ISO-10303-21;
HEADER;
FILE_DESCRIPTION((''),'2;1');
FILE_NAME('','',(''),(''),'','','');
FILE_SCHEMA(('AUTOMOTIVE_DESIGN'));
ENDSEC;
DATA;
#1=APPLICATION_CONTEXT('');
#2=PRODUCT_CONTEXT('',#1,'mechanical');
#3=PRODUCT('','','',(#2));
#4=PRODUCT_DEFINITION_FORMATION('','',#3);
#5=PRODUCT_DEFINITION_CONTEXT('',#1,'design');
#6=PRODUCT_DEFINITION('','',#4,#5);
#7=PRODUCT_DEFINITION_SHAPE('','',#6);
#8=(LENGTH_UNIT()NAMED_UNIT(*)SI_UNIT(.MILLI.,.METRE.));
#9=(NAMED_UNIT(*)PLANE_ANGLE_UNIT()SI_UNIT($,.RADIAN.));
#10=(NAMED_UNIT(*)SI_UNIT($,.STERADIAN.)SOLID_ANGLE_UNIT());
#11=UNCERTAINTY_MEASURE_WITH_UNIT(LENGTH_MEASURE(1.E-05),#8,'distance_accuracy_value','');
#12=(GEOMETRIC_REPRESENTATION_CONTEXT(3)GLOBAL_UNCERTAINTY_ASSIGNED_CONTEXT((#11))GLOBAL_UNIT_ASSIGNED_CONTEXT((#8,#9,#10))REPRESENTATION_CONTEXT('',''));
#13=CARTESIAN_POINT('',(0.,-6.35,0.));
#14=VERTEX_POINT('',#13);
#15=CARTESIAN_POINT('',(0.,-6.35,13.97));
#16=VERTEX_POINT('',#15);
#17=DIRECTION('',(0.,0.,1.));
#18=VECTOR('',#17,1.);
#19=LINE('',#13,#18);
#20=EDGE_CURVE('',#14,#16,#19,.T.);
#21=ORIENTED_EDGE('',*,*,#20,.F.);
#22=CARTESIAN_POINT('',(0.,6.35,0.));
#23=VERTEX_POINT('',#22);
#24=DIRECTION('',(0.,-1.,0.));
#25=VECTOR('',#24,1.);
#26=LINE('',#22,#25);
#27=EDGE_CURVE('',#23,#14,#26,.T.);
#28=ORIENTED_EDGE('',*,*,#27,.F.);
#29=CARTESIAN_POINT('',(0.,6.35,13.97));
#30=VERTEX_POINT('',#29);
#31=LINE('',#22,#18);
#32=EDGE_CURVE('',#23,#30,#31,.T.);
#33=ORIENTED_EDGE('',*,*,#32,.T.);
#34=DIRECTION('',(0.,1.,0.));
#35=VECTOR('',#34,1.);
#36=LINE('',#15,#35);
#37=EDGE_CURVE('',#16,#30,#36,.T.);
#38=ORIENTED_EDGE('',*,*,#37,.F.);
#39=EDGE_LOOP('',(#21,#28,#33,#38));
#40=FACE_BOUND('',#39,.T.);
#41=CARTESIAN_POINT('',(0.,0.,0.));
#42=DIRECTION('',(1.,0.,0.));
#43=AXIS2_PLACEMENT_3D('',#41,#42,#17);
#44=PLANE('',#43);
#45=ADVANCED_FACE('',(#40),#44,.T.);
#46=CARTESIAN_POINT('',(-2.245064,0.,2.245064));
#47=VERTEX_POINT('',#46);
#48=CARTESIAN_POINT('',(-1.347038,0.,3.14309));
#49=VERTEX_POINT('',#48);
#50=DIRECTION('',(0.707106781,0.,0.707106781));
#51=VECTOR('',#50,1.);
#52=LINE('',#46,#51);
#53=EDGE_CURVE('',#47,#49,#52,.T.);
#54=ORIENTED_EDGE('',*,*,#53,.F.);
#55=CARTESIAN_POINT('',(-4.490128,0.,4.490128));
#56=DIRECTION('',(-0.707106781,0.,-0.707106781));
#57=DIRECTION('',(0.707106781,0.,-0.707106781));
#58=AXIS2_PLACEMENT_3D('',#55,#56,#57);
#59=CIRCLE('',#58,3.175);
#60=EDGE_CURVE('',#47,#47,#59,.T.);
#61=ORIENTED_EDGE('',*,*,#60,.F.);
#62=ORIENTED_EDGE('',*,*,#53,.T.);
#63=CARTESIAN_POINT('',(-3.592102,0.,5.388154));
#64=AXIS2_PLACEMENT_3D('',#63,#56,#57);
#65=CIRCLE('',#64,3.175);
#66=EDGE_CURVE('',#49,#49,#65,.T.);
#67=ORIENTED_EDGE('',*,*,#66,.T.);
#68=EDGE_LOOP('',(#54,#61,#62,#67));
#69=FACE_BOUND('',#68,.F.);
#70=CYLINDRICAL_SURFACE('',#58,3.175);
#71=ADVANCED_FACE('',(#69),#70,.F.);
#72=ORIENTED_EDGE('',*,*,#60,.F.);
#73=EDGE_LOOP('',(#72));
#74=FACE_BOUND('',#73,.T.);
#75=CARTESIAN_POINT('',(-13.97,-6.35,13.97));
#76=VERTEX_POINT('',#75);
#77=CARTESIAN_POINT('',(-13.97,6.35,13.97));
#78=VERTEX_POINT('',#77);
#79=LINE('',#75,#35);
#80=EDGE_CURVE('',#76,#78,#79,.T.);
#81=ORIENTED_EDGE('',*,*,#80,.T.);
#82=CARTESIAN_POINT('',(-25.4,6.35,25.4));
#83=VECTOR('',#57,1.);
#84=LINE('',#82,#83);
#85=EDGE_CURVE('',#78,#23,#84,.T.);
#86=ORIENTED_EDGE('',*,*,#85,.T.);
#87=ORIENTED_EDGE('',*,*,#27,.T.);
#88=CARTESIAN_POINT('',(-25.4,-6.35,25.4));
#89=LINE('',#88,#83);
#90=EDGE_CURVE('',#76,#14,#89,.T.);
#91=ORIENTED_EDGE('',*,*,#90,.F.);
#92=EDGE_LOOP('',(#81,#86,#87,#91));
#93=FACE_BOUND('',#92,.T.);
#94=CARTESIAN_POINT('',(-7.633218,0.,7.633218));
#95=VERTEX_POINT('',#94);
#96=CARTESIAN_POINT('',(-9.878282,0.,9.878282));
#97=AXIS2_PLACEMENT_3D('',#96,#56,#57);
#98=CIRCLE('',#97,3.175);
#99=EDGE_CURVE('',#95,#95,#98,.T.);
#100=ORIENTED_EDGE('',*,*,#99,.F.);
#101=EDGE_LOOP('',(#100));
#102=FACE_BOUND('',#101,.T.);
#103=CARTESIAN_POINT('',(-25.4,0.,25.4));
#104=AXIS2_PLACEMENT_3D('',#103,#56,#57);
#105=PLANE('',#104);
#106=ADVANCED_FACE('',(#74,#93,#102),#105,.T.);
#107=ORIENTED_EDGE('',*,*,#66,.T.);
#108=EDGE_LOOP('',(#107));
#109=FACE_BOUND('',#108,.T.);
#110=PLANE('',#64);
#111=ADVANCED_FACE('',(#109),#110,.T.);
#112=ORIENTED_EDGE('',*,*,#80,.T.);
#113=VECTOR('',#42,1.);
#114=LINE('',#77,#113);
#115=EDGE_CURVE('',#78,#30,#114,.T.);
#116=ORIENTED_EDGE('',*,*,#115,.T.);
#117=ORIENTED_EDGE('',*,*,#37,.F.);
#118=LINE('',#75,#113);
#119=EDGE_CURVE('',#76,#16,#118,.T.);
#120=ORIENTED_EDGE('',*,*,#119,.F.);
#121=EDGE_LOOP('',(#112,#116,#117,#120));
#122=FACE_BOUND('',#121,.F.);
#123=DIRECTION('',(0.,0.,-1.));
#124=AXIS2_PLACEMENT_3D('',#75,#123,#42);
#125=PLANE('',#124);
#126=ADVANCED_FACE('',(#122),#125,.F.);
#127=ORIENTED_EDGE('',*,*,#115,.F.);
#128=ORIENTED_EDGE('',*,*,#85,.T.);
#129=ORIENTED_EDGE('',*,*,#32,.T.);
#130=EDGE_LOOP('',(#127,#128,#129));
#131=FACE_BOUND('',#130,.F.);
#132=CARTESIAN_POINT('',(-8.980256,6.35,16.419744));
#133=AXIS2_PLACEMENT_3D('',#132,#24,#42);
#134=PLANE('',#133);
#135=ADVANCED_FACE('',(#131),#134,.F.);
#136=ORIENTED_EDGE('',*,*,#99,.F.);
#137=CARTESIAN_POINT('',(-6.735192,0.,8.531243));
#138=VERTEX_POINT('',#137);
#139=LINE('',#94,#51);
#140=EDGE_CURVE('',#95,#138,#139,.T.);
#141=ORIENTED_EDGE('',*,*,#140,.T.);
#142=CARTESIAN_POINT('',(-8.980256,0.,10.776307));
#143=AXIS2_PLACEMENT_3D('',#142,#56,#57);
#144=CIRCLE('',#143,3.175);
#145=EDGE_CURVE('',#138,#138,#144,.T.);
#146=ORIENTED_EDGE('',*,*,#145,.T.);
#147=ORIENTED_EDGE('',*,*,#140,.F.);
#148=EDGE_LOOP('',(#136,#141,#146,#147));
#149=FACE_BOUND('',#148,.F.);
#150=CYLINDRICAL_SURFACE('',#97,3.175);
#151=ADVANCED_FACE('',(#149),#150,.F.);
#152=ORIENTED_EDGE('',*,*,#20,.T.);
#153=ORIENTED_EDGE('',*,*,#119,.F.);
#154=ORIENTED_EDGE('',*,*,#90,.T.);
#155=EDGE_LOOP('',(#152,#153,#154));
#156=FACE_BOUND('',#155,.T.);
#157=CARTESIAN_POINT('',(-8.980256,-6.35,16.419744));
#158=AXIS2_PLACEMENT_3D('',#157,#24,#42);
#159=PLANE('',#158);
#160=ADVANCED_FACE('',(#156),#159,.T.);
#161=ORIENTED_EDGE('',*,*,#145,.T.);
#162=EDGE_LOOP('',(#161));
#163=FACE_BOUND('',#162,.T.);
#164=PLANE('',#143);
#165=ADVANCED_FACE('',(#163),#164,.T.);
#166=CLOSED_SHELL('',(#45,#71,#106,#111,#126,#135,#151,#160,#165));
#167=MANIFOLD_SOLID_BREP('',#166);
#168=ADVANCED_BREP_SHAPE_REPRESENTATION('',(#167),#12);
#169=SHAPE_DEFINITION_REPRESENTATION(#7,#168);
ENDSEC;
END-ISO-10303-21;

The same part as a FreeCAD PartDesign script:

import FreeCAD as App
import Part
import Sketcher
Q = App.Units.Quantity


def add_polygon(sketch, points):
    """Adds a closed chain of lines whose ends are joined by coincident constraints."""
    first, n = sketch.GeometryCount, len(points)
    for a, b in zip(points, points[1:] + points[:1]):
        sketch.addGeometry(Part.LineSegment(App.Vector(*a, 0), App.Vector(*b, 0)), False)
    for i in range(n):
        sketch.addConstraint(Sketcher.Constraint("Coincident", first + i, 2, first + (i + 1) % n, 1))

doc = App.newDocument("Part")
body = doc.addObject("PartDesign::Body", "Body")

# Sketch on XZ plane
sketch1 = body.newObject("Sketcher::SketchObject", "Sketch")
sketch1.AttachmentSupport = (doc.getObject("XZ_Plane"), [""])
sketch1.MapMode = "FlatFace"
add_polygon(sketch1, [(-25.4, 25.4), (0, 0), (0, 25.4)])  # lines 0-2
sketch1.addConstraint([
    Sketcher.Constraint("Vertical", 1),
    Sketcher.Constraint("Horizontal", 2),
    Sketcher.Constraint("Coincident", 0, 2, -1, 1),
    Sketcher.Constraint("Equal", 2, 1),
    Sketcher.Constraint("DistanceX", 2, 2, 2, 1, Q("1 in")),
])
pad1 = body.newObject("PartDesign::Pad", "Pad")
pad1.Profile = sketch1
pad1.Length = Q("0.5 in")
pad1.Midplane = True

# Sketch on an angled plane
sketch2 = body.newObject("Sketcher::SketchObject", "Sketch001")
sketch2.Placement = App.Placement(App.Vector(0, 0, 0), App.Rotation(App.Vector(0.707106781, 0, -0.707106781), App.Vector(0, -0.999999999, 0), App.Vector(-0.707106781, 0, -0.707106781), "ZXY"))
sketch2.addGeometry([
    Part.Circle(App.Vector(-13.97, 0, 0), App.Vector(0, 0, 1), 3.175),
    Part.Circle(App.Vector(-6.35, 0, 0), App.Vector(0, 0, 1), 3.175),
], False)
sketch2.addConstraint([
    Sketcher.Constraint("Equal", 0, 1),
    Sketcher.Constraint("PointOnObject", 0, 3, -1),
    Sketcher.Constraint("PointOnObject", 1, 3, -1),
    Sketcher.Constraint("Diameter", 0, Q("0.25 in")),
    Sketcher.Constraint("DistanceX", 0, 3, 1, 3, Q("0.3 in")),
    Sketcher.Constraint("DistanceX", 0, 3, -1, 1, Q("0.55 in")),
])
pocket1 = body.newObject("PartDesign::Pocket", "Pocket")
pocket1.Profile = sketch2
pocket1.Length = Q("0.05 in")

# Sketch on XZ plane
sketch3 = body.newObject("Sketcher::SketchObject", "Sketch002")
sketch3.AttachmentSupport = (doc.getObject("XZ_Plane"), [""])
sketch3.MapMode = "FlatFace"
sketch3.AttachmentOffset = App.Placement(App.Vector(0, 0, 0.25 * 25.4), App.Rotation())
add_polygon(sketch3, [(-25.4, 25.4), (-13.97, 13.97), (0, 13.97), (0, 25.4)])  # lines 0-3
sketch3.addConstraint([
    Sketcher.Constraint("Horizontal", 1),
    Sketcher.Constraint("Vertical", 2),
    Sketcher.Constraint("Horizontal", 3),
    Sketcher.Constraint("PointOnObject", 1, 2, -2),
    Sketcher.Constraint("DistanceX", 3, 2, 3, 1, Q("1 in")),
    Sketcher.Constraint("DistanceY", -1, 1, 2, 2, Q("1 in")),
    Sketcher.Constraint("Angle", 0, Q("-45 deg")),
    Sketcher.Constraint("DistanceX", 1, 1, 1, 2, Q("0.55 in")),
])
pocket2 = body.newObject("PartDesign::Pocket", "Pocket001")
pocket2.Profile = sketch3
pocket2.Length = Q("0.5 in")

doc.recompute()
